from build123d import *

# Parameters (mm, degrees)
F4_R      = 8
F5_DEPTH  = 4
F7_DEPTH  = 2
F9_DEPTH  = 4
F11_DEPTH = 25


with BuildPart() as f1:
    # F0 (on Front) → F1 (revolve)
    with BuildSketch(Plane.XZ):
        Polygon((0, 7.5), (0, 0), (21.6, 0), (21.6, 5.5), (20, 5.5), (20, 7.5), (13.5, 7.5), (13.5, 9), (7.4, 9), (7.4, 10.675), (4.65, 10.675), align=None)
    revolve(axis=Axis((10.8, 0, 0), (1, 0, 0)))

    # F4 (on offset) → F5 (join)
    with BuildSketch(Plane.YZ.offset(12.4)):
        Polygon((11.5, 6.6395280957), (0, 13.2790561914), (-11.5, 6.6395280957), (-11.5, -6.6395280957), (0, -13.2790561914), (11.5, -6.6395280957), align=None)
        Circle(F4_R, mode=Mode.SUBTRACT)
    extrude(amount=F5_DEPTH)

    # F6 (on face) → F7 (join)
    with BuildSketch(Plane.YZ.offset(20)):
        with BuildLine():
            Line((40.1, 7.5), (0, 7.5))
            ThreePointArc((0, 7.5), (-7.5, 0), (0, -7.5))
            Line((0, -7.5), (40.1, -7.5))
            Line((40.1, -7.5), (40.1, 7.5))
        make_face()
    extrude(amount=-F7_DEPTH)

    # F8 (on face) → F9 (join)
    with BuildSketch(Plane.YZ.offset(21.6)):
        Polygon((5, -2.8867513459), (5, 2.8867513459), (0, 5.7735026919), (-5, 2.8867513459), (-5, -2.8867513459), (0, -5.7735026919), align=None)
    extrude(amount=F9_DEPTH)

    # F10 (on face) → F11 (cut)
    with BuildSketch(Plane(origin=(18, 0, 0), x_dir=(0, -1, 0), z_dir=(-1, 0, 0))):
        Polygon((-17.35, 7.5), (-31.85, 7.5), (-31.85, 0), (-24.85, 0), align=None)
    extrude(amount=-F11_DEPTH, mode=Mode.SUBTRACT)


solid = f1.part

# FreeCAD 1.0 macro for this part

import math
import FreeCAD as App
import Part
import Sketcher
Q = App.Units.Quantity


def add_polygon(sketch, points):
    """Adds a closed chain of lines whose ends are joined by coincident constraints."""
    first, n = sketch.GeometryCount, len(points)
    for a, b in zip(points, points[1:] + points[:1]):
        sketch.addGeometry(Part.LineSegment(App.Vector(*a, 0), App.Vector(*b, 0)), False)
    for i in range(n):
        sketch.addConstraint(Sketcher.Constraint("Coincident", first + i, 2, first + (i + 1) % n, 1))

doc = App.newDocument("Part")
body = doc.addObject("PartDesign::Body", "Body")

sketch1 = body.newObject("Sketcher::SketchObject", "Sketch")
sketch1.AttachmentSupport = (doc.getObject("XZ_Plane"), [""])
sketch1.MapMode = "FlatFace"
add_polygon(sketch1, [(0, 7.5), (0, 0), (21.6, 0), (21.6, 5.5), (20, 5.5), (20, 7.5), (13.5, 7.5), (13.5, 9), (7.4, 9), (7.4, 10.7), (4.7, 10.7)])
sketch1.addConstraint(Sketcher.Constraint("Vertical", 0))
sketch1.addConstraint(Sketcher.Constraint("Horizontal", 1))
sketch1.addConstraint(Sketcher.Constraint("Vertical", 2))
sketch1.addConstraint(Sketcher.Constraint("Horizontal", 3))
sketch1.addConstraint(Sketcher.Constraint("Vertical", 4))
sketch1.addConstraint(Sketcher.Constraint("Horizontal", 5))
sketch1.addConstraint(Sketcher.Constraint("Vertical", 6))
sketch1.addConstraint(Sketcher.Constraint("Horizontal", 7))
sketch1.addConstraint(Sketcher.Constraint("Vertical", 8))
sketch1.addConstraint(Sketcher.Constraint("Horizontal", 9))
sketch1.addConstraint(Sketcher.Constraint("Coincident", 0, 2, -1, 1))
sketch1.addConstraint(Sketcher.Constraint("Horizontal", 5, 2, 10, 2))
sketch1.addConstraint(Sketcher.Constraint("DistanceY", 4, 1, 4, 2, 2.0))
sketch1.addConstraint(Sketcher.Constraint("DistanceX", 1, 1, 1, 2, 21.6))
sketch1.addConstraint(Sketcher.Constraint("DistanceX", 3, 2, 3, 1, 1.6))
sketch1.addConstraint(Sketcher.Constraint("DistanceX", 5, 2, 5, 1, 6.5))
sketch1.addConstraint(Sketcher.Constraint("DistanceX", 7, 2, 7, 1, 6.1))
sketch1.addConstraint(Sketcher.Constraint("DistanceY", 0, 2, 0, 1, 7.5))
sketch1.addConstraint(Sketcher.Constraint("DistanceY", 6, 1, 6, 2, 1.5))
sketch1.addConstraint(Sketcher.Constraint("DistanceX", 9, 2, 9, 1, 2.75))
sketch1.addConstraint(Sketcher.Constraint("DistanceY", 8, 1, 8, 2, 1.675))
revolution = body.newObject("PartDesign::Revolution", "Revolution")
revolution.Profile = sketch1
revolution.ReferenceAxis = (sketch1, ["H_Axis"])
revolution.Angle = 360

sketch2 = body.newObject("Sketcher::SketchObject", "Sketch001")
sketch2.AttachmentSupport = (doc.getObject("YZ_Plane"), [""])
sketch2.MapMode = "FlatFace"
sketch2.AttachmentOffset = App.Placement(App.Vector(0, 0, 12.4), App.Rotation())
add_polygon(sketch2, [(12, 7), (0, 13), (-12, 7), (-12, -7), (0, -13), (12, -7)])
sketch2.addGeometry(Part.Circle(App.Vector(0, 0, 0), App.Vector(0, 0, 1), 8), False)
sketch2.addConstraint(Sketcher.Constraint("Vertical", 2))
sketch2.addConstraint(Sketcher.Constraint("Vertical", 5))
sketch2.addConstraint(Sketcher.Constraint("Coincident", 6, 3, -1, 1))
sketch2.addConstraint(Sketcher.Constraint("Symmetric", 0, 2, 3, 2, -1, 1))
sketch2.addConstraint(Sketcher.Constraint("Symmetric", 1, 2, 4, 2, -1, 1))
sketch2.addConstraint(Sketcher.Constraint("PointOnObject", 0, 2, -2))
sketch2.addConstraint(Sketcher.Constraint("Parallel", 0, 3))
sketch2.addConstraint(Sketcher.Constraint("Horizontal", 2, 2, 4, 2))
sketch2.addConstraint(Sketcher.Constraint("Diameter", 6, 16.0))
sketch2.addConstraint(Sketcher.Constraint("Angle", 0, Q("150 deg")))
sketch2.addConstraint(Sketcher.Constraint("DistanceX", 2, 2, 4, 2, 23.0))
sketch2.addConstraint(Sketcher.Constraint("DistanceY", 2, 2, 2, 1, 13.279056))
pad1 = body.newObject("PartDesign::Pad", "Pad")
pad1.Profile = sketch2
pad1.Length = 4

sketch3 = body.newObject("Sketcher::SketchObject", "Sketch002")
sketch3.AttachmentSupport = (doc.getObject("YZ_Plane"), [""])
sketch3.MapMode = "FlatFace"
sketch3.AttachmentOffset = App.Placement(App.Vector(0, 0, 20), App.Rotation())
sketch3.addGeometry(Part.LineSegment(App.Vector(40, 8, 0), App.Vector(0, 8, 0)), False)
sketch3.addGeometry(Part.ArcOfCircle(Part.Circle(App.Vector(0, 0, 0), App.Vector(0, 0, 1), 8), math.radians(90), math.radians(270)), False)
sketch3.addGeometry(Part.LineSegment(App.Vector(0, -8, 0), App.Vector(40, -8, 0)), False)
sketch3.addGeometry(Part.LineSegment(App.Vector(40, -8, 0), App.Vector(40, 8, 0)), False)
sketch3.addConstraint(Sketcher.Constraint("Tangent", 0, 2, 1, 1))
sketch3.addConstraint(Sketcher.Constraint("Tangent", 1, 2, 2, 1))
sketch3.addConstraint(Sketcher.Constraint("Coincident", 2, 2, 3, 1))
sketch3.addConstraint(Sketcher.Constraint("Coincident", 3, 2, 0, 1))
sketch3.addConstraint(Sketcher.Constraint("Horizontal", 0))
sketch3.addConstraint(Sketcher.Constraint("Horizontal", 2))
sketch3.addConstraint(Sketcher.Constraint("Vertical", 3))
sketch3.addConstraint(Sketcher.Constraint("Coincident", 1, 3, -1, 1))
sketch3.addConstraint(Sketcher.Constraint("Radius", 1, 7.5))
sketch3.addConstraint(Sketcher.Constraint("DistanceX", 0, 2, 0, 1, 40.1))
pad2 = body.newObject("PartDesign::Pad", "Pad001")
pad2.Profile = sketch3
pad2.Length = 2
pad2.Reversed = True

sketch4 = body.newObject("Sketcher::SketchObject", "Sketch003")
sketch4.AttachmentSupport = (doc.getObject("YZ_Plane"), [""])
sketch4.MapMode = "FlatFace"
sketch4.AttachmentOffset = App.Placement(App.Vector(0, 0, 21.6), App.Rotation())
add_polygon(sketch4, [(5, -3), (5, 3), (0, 6), (-5, 3), (-5, -3), (0, -6)])
sketch4.addConstraint(Sketcher.Constraint("Vertical", 0))
sketch4.addConstraint(Sketcher.Constraint("Vertical", 3))
sketch4.addConstraint(Sketcher.Constraint("Symmetric", 0, 2, 3, 2, -1, 1))
sketch4.addConstraint(Sketcher.Constraint("Symmetric", 1, 2, 4, 2, -1, 1))
sketch4.addConstraint(Sketcher.Constraint("PointOnObject", 1, 2, -2))
sketch4.addConstraint(Sketcher.Constraint("Parallel", 2, 5))
sketch4.addConstraint(Sketcher.Constraint("Horizontal", 0, 2, 2, 2))
sketch4.addConstraint(Sketcher.Constraint("Angle", 1, Q("150 deg")))
sketch4.addConstraint(Sketcher.Constraint("DistanceX", -1, 1, 0, 2, 5.0))
sketch4.addConstraint(Sketcher.Constraint("DistanceY", 0, 1, 0, 2, 5.773503))
pad3 = body.newObject("PartDesign::Pad", "Pad002")
pad3.Profile = sketch4
pad3.Length = 4

sketch5 = body.newObject("Sketcher::SketchObject", "Sketch004")
sketch5.AttachmentSupport = (doc.getObject("YZ_Plane"), [""])
sketch5.MapMode = "FlatFace"
sketch5.AttachmentOffset = App.Placement(App.Vector(0, 0, 18), App.Rotation())
add_polygon(sketch5, [(17, 8), (32, 8), (32, 0), (25, 0)])
sketch5.addConstraint(Sketcher.Constraint("Horizontal", 0))
sketch5.addConstraint(Sketcher.Constraint("Vertical", 1))
sketch5.addConstraint(Sketcher.Constraint("Horizontal", 2))
sketch5.addConstraint(Sketcher.Constraint("PointOnObject", 1, 2, -1))
sketch5.addConstraint(Sketcher.Constraint("DistanceX", 2, 2, 2, 1, 7.0))
sketch5.addConstraint(Sketcher.Constraint("Angle", 3, Q("135 deg")))
sketch5.addConstraint(Sketcher.Constraint("DistanceX", 0, 1, 0, 2, 14.5))
sketch5.addConstraint(Sketcher.Constraint("DistanceX", -1, 1, 0, 2, 31.85))
pocket1 = body.newObject("PartDesign::Pocket", "Pocket")
pocket1.Profile = sketch5
pocket1.Length = 25
pocket1.Reversed = True

doc.recompute()
